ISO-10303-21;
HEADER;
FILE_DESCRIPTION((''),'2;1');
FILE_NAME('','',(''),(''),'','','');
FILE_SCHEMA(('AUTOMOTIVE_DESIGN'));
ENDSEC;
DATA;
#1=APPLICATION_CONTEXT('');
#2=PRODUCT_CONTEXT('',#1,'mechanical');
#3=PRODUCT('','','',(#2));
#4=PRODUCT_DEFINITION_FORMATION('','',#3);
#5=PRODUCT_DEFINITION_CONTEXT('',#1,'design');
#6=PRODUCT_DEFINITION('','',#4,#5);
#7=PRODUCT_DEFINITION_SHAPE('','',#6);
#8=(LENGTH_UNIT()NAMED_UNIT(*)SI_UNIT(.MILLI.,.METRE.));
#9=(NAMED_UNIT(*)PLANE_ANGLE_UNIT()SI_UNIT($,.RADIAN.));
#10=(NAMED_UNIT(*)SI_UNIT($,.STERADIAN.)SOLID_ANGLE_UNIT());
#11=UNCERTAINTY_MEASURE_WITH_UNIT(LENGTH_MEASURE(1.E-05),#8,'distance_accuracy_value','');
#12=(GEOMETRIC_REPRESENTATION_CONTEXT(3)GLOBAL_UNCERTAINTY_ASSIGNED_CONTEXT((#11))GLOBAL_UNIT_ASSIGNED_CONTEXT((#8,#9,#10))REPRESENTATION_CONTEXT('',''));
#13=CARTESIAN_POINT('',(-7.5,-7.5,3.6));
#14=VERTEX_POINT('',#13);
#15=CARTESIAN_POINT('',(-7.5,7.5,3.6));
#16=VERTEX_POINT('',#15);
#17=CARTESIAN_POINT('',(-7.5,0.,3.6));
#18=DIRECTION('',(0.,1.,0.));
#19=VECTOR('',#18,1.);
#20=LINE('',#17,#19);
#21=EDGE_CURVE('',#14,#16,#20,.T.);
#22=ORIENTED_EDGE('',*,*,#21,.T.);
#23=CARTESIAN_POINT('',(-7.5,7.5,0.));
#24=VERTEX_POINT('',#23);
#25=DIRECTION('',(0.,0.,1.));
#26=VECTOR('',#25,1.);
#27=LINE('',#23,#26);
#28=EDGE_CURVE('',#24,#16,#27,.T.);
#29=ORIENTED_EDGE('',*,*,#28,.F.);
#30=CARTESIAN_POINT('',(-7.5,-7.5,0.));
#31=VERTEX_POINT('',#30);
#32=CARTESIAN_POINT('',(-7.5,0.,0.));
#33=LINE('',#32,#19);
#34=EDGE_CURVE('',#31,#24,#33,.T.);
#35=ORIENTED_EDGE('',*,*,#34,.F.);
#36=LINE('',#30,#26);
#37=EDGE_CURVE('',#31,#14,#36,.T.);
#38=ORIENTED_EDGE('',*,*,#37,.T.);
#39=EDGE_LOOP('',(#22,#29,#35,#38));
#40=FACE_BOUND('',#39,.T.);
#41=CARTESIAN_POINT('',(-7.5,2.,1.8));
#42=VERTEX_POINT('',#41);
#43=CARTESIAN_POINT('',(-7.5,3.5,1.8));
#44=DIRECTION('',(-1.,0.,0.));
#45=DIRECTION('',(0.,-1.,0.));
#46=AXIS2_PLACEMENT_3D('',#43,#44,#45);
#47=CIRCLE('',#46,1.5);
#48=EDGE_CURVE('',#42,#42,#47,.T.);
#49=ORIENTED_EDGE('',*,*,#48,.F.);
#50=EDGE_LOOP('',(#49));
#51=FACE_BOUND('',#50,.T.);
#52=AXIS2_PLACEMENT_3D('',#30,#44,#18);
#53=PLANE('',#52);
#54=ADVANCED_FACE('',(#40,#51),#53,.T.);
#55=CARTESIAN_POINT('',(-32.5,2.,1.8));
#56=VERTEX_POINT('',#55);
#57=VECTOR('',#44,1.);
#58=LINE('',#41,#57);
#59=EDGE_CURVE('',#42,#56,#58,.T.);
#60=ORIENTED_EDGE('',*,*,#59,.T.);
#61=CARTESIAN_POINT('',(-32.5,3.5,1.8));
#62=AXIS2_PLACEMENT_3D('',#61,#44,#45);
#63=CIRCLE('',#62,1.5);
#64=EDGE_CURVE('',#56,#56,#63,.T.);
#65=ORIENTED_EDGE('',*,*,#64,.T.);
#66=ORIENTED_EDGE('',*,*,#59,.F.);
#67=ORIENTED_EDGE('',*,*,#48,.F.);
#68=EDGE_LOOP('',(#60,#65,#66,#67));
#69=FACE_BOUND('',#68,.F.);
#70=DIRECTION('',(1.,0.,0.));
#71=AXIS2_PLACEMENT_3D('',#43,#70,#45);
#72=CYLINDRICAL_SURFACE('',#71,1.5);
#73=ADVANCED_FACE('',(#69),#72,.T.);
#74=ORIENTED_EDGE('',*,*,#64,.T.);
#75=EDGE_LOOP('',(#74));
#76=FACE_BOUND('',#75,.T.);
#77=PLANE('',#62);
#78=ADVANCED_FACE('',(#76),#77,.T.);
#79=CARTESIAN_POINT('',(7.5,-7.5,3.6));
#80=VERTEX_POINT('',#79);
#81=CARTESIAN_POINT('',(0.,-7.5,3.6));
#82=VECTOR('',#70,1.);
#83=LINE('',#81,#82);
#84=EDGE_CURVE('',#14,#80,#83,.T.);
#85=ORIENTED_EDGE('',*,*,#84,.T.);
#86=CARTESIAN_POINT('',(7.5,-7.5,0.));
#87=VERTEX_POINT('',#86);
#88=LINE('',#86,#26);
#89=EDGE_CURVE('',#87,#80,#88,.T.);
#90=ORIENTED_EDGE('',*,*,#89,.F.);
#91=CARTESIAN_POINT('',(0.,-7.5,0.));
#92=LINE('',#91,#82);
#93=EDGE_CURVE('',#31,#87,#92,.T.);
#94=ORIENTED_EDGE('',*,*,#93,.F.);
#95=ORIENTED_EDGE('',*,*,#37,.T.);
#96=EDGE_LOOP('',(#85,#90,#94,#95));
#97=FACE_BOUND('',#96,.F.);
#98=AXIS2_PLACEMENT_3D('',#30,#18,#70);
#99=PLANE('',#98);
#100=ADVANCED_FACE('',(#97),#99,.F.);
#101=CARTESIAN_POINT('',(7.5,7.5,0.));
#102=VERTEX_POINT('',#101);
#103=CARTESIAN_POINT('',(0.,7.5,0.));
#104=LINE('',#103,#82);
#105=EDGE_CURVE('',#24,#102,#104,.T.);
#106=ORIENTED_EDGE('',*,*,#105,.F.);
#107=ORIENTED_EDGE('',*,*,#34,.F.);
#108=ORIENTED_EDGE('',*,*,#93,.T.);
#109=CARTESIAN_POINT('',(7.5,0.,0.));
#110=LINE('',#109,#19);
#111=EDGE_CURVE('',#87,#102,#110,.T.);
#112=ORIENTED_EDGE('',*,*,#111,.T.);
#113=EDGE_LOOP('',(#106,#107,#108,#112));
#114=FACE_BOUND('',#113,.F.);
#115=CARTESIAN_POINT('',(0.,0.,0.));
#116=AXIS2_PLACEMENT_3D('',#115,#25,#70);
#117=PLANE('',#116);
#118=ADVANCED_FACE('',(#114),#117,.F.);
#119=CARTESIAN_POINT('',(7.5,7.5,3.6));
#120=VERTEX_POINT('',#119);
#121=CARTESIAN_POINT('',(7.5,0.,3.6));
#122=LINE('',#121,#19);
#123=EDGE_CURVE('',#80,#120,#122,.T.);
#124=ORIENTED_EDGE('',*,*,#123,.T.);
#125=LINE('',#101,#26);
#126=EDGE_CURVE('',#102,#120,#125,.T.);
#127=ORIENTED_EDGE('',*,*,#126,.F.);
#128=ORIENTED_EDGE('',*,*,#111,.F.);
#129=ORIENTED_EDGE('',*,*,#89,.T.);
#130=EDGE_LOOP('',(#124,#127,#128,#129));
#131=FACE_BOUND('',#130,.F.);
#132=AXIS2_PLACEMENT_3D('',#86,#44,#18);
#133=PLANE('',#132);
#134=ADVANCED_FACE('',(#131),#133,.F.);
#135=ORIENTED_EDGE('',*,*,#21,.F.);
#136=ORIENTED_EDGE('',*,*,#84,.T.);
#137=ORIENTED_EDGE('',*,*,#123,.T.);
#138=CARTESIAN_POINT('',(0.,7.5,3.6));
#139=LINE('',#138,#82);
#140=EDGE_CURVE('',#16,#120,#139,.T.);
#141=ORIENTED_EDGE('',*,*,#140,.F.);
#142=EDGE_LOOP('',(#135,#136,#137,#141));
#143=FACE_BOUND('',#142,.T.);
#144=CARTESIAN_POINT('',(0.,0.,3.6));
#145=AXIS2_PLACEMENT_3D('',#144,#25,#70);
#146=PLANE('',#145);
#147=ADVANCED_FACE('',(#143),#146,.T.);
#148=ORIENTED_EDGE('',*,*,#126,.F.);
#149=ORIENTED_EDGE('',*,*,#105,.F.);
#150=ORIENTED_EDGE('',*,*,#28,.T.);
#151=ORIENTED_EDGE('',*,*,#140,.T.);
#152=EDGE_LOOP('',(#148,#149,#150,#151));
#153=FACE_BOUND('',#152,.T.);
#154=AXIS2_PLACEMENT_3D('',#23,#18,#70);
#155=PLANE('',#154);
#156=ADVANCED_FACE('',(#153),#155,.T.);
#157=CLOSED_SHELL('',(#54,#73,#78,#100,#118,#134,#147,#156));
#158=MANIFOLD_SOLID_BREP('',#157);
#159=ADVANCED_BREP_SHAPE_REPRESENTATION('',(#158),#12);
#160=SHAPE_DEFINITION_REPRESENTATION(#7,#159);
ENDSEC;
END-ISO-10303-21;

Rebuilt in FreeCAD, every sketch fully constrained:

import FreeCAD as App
import Part
import Sketcher


def add_polygon(sketch, points):
    """Adds a closed chain of lines whose ends are joined by coincident constraints."""
    first, n = sketch.GeometryCount, len(points)
    for a, b in zip(points, points[1:] + points[:1]):
        sketch.addGeometry(Part.LineSegment(App.Vector(*a, 0), App.Vector(*b, 0)), False)
    for i in range(n):
        sketch.addConstraint(Sketcher.Constraint("Coincident", first + i, 2, first + (i + 1) % n, 1))

doc = App.newDocument("Part")
body = doc.addObject("PartDesign::Body", "Body")

sketch1 = body.newObject("Sketcher::SketchObject", "Sketch")
sketch1.AttachmentSupport = (doc.getObject("XY_Plane"), [""])
sketch1.MapMode = "FlatFace"
add_polygon(sketch1, [(-8, 8), (-8, -8), (8, -8), (8, 8)])
sketch1.addConstraint([
    Sketcher.Constraint("Vertical", 0),
    Sketcher.Constraint("Horizontal", 1),
    Sketcher.Constraint("Vertical", 2),
    Sketcher.Constraint("Horizontal", 3),
    Sketcher.Constraint("Symmetric", 0, 2, 2, 2, -1, 1),
    Sketcher.Constraint("Equal", 3, 0),
    Sketcher.Constraint("DistanceX", 1, 1, 1, 2, 15.0),
])
pad1 = body.newObject("PartDesign::Pad", "Pad")
pad1.Profile = sketch1
pad1.Length = 3.6

sketch2 = body.newObject("Sketcher::SketchObject", "Sketch001")
sketch2.AttachmentSupport = (doc.getObject("YZ_Plane"), [""])
sketch2.MapMode = "FlatFace"
sketch2.AttachmentOffset = App.Placement(App.Vector(0, 0, -7.5), App.Rotation())
sketch2.addGeometry(Part.Circle(App.Vector(3.5, 1.8, 0), App.Vector(0, 0, 1), 1.5), False)
sketch2.addConstraint([
    Sketcher.Constraint("Diameter", 0, 3.0),
    Sketcher.Constraint("DistanceX", -1, 1, 0, 3, 3.5),
    Sketcher.Constraint("DistanceY", -1, 1, 0, 3, 1.8),
])
pad2 = body.newObject("PartDesign::Pad", "Pad001")
pad2.Profile = sketch2
pad2.Length = 25
pad2.Reversed = True

doc.recompute()
